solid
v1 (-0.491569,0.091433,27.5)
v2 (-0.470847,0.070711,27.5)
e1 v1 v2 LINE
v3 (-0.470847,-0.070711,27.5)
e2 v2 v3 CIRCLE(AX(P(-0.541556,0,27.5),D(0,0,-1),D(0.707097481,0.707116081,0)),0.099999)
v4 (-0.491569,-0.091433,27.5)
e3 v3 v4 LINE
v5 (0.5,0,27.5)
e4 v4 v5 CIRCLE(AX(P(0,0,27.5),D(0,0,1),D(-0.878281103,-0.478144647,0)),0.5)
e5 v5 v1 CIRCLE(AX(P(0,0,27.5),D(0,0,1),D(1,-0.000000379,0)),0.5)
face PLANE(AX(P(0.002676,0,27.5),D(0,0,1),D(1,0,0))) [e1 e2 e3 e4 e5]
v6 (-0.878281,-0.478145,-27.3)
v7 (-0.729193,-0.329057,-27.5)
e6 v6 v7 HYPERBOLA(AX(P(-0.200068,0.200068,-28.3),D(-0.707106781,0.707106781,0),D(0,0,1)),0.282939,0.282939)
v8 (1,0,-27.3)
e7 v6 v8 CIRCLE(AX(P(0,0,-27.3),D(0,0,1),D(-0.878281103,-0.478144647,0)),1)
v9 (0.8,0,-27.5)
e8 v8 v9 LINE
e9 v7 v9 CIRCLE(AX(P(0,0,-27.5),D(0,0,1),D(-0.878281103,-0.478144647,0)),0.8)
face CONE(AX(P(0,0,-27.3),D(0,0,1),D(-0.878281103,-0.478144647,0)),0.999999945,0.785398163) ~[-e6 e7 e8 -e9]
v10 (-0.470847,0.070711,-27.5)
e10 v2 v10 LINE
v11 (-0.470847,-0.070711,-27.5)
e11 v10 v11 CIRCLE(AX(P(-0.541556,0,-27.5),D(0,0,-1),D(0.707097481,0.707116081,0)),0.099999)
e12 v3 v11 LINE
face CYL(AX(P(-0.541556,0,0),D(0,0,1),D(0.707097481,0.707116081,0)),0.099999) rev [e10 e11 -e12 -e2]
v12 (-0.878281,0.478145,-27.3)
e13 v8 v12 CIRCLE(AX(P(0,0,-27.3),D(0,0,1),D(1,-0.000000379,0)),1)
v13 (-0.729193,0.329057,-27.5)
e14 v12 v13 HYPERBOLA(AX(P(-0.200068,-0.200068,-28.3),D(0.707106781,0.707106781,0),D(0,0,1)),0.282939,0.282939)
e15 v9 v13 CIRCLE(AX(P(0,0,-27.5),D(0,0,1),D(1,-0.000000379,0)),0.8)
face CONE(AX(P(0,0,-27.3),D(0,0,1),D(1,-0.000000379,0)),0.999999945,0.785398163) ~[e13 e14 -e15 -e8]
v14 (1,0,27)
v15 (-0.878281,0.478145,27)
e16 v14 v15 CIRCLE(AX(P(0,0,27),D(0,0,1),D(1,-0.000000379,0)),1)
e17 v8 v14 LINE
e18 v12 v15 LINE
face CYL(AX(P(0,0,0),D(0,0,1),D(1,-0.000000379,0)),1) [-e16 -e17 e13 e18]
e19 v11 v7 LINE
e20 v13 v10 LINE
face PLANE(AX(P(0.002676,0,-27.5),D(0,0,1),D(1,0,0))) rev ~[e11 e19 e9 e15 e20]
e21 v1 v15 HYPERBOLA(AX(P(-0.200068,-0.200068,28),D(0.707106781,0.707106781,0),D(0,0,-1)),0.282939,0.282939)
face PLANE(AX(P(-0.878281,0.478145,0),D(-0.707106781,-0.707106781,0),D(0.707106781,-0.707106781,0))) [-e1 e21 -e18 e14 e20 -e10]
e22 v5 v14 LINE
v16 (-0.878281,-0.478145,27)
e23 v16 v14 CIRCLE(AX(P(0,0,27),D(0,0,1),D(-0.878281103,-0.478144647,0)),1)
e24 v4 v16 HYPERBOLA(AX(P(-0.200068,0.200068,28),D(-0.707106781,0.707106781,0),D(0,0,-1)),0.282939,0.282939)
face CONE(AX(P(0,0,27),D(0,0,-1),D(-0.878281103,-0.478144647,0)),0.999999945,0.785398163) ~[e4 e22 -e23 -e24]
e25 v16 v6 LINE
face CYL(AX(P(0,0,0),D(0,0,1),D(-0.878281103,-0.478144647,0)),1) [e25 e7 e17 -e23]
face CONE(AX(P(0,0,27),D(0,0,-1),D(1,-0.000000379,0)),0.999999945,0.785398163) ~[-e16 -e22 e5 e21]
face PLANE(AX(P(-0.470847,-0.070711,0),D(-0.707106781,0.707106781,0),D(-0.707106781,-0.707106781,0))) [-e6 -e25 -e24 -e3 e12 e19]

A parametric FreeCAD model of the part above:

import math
import FreeCAD as App
import Part
import Sketcher

V = App.Vector


def edges_at(feature, points):
    """Names of the edges that pass closest to the given points."""
    edges = feature.Shape.Edges
    near = lambda p: min(range(len(edges)), key=lambda i: edges[i].distToShape(Part.Vertex(*p))[0])
    return sorted({f"Edge{near(p) + 1}" for p in points})

doc = App.newDocument("Part")
body = doc.addObject("PartDesign::Body", "Body")

sketch1 = doc.addObject("Sketcher::SketchObject", "Sketch")
body.addObject(sketch1)
sketch1.AttachmentSupport = (doc.XY_Plane, [""])
sketch1.MapMode = "FlatFace"
sketch1.addGeometry([
    Part.ArcOfCircle(Part.Circle(V(0, 0, 0), V(0, 0, 1), 1), math.radians(-151), math.radians(0)),
    Part.ArcOfCircle(Part.Circle(V(0, 0, 0), V(0, 0, 1), 1), math.radians(0), math.radians(151)),
    Part.LineSegment(V(-0.88, 0.48, 0), V(-0.47, 0.07, 0)),
    Part.ArcOfCircle(Part.Circle(V(-0.54, 0, 0), V(0, 0, 1), 0.1), math.radians(-45), math.radians(45)),
    Part.LineSegment(V(-0.47, -0.07, 0), V(-0.88, -0.48, 0)),
], False)
sketch1.addConstraint([
    Sketcher.Constraint("Tangent", 0, 2, 1, 1),
    Sketcher.Constraint("Coincident", 1, 2, 2, 1),
    Sketcher.Constraint("Coincident", 2, 2, 3, 2),
    Sketcher.Constraint("Coincident", 3, 1, 4, 1),
    Sketcher.Constraint("Coincident", 4, 2, 0, 1),
    Sketcher.Constraint("Coincident", 0, 3, -1, 1),
    Sketcher.Constraint("Equal", 0, 1),
    Sketcher.Constraint("Symmetric", 2, 2, 3, 1, -1),
    Sketcher.Constraint("PointOnObject", 0, 2, -1),
    Sketcher.Constraint("Perpendicular", 2, 4),
    Sketcher.Constraint("Vertical", 1, 2, 4, 2),
    Sketcher.Constraint("Radius", 0, 1.0),
    Sketcher.Constraint("Radius", 3, 0.099999),
    Sketcher.Constraint("Distance", 2, 0.576199),
    Sketcher.Constraint("DistanceX", 1, 2, -1, 1, 0.878281),
])
pad1 = doc.addObject("PartDesign::Pad", "Pad")
body.addObject(pad1)
pad1.Profile = sketch1
pad1.Length = 55
pad1.Midplane = True
doc.recompute()

chamfer = doc.addObject("PartDesign::Chamfer", "Chamfer")
body.addObject(chamfer)
chamfer.Base = (pad1, edges_at(pad1, [(0.247, 0.969, 27.5), (0.247, -0.969, 27.5)]))
chamfer.Size = 0.5
doc.recompute()

chamfer2 = doc.addObject("PartDesign::Chamfer", "Chamfer001")
body.addObject(chamfer2)
chamfer2.Base = (chamfer, edges_at(chamfer, [(0.247, -0.969, -27.5), (0.247, 0.969, -27.5)]))
chamfer2.Size = 0.2

doc.recompute()
